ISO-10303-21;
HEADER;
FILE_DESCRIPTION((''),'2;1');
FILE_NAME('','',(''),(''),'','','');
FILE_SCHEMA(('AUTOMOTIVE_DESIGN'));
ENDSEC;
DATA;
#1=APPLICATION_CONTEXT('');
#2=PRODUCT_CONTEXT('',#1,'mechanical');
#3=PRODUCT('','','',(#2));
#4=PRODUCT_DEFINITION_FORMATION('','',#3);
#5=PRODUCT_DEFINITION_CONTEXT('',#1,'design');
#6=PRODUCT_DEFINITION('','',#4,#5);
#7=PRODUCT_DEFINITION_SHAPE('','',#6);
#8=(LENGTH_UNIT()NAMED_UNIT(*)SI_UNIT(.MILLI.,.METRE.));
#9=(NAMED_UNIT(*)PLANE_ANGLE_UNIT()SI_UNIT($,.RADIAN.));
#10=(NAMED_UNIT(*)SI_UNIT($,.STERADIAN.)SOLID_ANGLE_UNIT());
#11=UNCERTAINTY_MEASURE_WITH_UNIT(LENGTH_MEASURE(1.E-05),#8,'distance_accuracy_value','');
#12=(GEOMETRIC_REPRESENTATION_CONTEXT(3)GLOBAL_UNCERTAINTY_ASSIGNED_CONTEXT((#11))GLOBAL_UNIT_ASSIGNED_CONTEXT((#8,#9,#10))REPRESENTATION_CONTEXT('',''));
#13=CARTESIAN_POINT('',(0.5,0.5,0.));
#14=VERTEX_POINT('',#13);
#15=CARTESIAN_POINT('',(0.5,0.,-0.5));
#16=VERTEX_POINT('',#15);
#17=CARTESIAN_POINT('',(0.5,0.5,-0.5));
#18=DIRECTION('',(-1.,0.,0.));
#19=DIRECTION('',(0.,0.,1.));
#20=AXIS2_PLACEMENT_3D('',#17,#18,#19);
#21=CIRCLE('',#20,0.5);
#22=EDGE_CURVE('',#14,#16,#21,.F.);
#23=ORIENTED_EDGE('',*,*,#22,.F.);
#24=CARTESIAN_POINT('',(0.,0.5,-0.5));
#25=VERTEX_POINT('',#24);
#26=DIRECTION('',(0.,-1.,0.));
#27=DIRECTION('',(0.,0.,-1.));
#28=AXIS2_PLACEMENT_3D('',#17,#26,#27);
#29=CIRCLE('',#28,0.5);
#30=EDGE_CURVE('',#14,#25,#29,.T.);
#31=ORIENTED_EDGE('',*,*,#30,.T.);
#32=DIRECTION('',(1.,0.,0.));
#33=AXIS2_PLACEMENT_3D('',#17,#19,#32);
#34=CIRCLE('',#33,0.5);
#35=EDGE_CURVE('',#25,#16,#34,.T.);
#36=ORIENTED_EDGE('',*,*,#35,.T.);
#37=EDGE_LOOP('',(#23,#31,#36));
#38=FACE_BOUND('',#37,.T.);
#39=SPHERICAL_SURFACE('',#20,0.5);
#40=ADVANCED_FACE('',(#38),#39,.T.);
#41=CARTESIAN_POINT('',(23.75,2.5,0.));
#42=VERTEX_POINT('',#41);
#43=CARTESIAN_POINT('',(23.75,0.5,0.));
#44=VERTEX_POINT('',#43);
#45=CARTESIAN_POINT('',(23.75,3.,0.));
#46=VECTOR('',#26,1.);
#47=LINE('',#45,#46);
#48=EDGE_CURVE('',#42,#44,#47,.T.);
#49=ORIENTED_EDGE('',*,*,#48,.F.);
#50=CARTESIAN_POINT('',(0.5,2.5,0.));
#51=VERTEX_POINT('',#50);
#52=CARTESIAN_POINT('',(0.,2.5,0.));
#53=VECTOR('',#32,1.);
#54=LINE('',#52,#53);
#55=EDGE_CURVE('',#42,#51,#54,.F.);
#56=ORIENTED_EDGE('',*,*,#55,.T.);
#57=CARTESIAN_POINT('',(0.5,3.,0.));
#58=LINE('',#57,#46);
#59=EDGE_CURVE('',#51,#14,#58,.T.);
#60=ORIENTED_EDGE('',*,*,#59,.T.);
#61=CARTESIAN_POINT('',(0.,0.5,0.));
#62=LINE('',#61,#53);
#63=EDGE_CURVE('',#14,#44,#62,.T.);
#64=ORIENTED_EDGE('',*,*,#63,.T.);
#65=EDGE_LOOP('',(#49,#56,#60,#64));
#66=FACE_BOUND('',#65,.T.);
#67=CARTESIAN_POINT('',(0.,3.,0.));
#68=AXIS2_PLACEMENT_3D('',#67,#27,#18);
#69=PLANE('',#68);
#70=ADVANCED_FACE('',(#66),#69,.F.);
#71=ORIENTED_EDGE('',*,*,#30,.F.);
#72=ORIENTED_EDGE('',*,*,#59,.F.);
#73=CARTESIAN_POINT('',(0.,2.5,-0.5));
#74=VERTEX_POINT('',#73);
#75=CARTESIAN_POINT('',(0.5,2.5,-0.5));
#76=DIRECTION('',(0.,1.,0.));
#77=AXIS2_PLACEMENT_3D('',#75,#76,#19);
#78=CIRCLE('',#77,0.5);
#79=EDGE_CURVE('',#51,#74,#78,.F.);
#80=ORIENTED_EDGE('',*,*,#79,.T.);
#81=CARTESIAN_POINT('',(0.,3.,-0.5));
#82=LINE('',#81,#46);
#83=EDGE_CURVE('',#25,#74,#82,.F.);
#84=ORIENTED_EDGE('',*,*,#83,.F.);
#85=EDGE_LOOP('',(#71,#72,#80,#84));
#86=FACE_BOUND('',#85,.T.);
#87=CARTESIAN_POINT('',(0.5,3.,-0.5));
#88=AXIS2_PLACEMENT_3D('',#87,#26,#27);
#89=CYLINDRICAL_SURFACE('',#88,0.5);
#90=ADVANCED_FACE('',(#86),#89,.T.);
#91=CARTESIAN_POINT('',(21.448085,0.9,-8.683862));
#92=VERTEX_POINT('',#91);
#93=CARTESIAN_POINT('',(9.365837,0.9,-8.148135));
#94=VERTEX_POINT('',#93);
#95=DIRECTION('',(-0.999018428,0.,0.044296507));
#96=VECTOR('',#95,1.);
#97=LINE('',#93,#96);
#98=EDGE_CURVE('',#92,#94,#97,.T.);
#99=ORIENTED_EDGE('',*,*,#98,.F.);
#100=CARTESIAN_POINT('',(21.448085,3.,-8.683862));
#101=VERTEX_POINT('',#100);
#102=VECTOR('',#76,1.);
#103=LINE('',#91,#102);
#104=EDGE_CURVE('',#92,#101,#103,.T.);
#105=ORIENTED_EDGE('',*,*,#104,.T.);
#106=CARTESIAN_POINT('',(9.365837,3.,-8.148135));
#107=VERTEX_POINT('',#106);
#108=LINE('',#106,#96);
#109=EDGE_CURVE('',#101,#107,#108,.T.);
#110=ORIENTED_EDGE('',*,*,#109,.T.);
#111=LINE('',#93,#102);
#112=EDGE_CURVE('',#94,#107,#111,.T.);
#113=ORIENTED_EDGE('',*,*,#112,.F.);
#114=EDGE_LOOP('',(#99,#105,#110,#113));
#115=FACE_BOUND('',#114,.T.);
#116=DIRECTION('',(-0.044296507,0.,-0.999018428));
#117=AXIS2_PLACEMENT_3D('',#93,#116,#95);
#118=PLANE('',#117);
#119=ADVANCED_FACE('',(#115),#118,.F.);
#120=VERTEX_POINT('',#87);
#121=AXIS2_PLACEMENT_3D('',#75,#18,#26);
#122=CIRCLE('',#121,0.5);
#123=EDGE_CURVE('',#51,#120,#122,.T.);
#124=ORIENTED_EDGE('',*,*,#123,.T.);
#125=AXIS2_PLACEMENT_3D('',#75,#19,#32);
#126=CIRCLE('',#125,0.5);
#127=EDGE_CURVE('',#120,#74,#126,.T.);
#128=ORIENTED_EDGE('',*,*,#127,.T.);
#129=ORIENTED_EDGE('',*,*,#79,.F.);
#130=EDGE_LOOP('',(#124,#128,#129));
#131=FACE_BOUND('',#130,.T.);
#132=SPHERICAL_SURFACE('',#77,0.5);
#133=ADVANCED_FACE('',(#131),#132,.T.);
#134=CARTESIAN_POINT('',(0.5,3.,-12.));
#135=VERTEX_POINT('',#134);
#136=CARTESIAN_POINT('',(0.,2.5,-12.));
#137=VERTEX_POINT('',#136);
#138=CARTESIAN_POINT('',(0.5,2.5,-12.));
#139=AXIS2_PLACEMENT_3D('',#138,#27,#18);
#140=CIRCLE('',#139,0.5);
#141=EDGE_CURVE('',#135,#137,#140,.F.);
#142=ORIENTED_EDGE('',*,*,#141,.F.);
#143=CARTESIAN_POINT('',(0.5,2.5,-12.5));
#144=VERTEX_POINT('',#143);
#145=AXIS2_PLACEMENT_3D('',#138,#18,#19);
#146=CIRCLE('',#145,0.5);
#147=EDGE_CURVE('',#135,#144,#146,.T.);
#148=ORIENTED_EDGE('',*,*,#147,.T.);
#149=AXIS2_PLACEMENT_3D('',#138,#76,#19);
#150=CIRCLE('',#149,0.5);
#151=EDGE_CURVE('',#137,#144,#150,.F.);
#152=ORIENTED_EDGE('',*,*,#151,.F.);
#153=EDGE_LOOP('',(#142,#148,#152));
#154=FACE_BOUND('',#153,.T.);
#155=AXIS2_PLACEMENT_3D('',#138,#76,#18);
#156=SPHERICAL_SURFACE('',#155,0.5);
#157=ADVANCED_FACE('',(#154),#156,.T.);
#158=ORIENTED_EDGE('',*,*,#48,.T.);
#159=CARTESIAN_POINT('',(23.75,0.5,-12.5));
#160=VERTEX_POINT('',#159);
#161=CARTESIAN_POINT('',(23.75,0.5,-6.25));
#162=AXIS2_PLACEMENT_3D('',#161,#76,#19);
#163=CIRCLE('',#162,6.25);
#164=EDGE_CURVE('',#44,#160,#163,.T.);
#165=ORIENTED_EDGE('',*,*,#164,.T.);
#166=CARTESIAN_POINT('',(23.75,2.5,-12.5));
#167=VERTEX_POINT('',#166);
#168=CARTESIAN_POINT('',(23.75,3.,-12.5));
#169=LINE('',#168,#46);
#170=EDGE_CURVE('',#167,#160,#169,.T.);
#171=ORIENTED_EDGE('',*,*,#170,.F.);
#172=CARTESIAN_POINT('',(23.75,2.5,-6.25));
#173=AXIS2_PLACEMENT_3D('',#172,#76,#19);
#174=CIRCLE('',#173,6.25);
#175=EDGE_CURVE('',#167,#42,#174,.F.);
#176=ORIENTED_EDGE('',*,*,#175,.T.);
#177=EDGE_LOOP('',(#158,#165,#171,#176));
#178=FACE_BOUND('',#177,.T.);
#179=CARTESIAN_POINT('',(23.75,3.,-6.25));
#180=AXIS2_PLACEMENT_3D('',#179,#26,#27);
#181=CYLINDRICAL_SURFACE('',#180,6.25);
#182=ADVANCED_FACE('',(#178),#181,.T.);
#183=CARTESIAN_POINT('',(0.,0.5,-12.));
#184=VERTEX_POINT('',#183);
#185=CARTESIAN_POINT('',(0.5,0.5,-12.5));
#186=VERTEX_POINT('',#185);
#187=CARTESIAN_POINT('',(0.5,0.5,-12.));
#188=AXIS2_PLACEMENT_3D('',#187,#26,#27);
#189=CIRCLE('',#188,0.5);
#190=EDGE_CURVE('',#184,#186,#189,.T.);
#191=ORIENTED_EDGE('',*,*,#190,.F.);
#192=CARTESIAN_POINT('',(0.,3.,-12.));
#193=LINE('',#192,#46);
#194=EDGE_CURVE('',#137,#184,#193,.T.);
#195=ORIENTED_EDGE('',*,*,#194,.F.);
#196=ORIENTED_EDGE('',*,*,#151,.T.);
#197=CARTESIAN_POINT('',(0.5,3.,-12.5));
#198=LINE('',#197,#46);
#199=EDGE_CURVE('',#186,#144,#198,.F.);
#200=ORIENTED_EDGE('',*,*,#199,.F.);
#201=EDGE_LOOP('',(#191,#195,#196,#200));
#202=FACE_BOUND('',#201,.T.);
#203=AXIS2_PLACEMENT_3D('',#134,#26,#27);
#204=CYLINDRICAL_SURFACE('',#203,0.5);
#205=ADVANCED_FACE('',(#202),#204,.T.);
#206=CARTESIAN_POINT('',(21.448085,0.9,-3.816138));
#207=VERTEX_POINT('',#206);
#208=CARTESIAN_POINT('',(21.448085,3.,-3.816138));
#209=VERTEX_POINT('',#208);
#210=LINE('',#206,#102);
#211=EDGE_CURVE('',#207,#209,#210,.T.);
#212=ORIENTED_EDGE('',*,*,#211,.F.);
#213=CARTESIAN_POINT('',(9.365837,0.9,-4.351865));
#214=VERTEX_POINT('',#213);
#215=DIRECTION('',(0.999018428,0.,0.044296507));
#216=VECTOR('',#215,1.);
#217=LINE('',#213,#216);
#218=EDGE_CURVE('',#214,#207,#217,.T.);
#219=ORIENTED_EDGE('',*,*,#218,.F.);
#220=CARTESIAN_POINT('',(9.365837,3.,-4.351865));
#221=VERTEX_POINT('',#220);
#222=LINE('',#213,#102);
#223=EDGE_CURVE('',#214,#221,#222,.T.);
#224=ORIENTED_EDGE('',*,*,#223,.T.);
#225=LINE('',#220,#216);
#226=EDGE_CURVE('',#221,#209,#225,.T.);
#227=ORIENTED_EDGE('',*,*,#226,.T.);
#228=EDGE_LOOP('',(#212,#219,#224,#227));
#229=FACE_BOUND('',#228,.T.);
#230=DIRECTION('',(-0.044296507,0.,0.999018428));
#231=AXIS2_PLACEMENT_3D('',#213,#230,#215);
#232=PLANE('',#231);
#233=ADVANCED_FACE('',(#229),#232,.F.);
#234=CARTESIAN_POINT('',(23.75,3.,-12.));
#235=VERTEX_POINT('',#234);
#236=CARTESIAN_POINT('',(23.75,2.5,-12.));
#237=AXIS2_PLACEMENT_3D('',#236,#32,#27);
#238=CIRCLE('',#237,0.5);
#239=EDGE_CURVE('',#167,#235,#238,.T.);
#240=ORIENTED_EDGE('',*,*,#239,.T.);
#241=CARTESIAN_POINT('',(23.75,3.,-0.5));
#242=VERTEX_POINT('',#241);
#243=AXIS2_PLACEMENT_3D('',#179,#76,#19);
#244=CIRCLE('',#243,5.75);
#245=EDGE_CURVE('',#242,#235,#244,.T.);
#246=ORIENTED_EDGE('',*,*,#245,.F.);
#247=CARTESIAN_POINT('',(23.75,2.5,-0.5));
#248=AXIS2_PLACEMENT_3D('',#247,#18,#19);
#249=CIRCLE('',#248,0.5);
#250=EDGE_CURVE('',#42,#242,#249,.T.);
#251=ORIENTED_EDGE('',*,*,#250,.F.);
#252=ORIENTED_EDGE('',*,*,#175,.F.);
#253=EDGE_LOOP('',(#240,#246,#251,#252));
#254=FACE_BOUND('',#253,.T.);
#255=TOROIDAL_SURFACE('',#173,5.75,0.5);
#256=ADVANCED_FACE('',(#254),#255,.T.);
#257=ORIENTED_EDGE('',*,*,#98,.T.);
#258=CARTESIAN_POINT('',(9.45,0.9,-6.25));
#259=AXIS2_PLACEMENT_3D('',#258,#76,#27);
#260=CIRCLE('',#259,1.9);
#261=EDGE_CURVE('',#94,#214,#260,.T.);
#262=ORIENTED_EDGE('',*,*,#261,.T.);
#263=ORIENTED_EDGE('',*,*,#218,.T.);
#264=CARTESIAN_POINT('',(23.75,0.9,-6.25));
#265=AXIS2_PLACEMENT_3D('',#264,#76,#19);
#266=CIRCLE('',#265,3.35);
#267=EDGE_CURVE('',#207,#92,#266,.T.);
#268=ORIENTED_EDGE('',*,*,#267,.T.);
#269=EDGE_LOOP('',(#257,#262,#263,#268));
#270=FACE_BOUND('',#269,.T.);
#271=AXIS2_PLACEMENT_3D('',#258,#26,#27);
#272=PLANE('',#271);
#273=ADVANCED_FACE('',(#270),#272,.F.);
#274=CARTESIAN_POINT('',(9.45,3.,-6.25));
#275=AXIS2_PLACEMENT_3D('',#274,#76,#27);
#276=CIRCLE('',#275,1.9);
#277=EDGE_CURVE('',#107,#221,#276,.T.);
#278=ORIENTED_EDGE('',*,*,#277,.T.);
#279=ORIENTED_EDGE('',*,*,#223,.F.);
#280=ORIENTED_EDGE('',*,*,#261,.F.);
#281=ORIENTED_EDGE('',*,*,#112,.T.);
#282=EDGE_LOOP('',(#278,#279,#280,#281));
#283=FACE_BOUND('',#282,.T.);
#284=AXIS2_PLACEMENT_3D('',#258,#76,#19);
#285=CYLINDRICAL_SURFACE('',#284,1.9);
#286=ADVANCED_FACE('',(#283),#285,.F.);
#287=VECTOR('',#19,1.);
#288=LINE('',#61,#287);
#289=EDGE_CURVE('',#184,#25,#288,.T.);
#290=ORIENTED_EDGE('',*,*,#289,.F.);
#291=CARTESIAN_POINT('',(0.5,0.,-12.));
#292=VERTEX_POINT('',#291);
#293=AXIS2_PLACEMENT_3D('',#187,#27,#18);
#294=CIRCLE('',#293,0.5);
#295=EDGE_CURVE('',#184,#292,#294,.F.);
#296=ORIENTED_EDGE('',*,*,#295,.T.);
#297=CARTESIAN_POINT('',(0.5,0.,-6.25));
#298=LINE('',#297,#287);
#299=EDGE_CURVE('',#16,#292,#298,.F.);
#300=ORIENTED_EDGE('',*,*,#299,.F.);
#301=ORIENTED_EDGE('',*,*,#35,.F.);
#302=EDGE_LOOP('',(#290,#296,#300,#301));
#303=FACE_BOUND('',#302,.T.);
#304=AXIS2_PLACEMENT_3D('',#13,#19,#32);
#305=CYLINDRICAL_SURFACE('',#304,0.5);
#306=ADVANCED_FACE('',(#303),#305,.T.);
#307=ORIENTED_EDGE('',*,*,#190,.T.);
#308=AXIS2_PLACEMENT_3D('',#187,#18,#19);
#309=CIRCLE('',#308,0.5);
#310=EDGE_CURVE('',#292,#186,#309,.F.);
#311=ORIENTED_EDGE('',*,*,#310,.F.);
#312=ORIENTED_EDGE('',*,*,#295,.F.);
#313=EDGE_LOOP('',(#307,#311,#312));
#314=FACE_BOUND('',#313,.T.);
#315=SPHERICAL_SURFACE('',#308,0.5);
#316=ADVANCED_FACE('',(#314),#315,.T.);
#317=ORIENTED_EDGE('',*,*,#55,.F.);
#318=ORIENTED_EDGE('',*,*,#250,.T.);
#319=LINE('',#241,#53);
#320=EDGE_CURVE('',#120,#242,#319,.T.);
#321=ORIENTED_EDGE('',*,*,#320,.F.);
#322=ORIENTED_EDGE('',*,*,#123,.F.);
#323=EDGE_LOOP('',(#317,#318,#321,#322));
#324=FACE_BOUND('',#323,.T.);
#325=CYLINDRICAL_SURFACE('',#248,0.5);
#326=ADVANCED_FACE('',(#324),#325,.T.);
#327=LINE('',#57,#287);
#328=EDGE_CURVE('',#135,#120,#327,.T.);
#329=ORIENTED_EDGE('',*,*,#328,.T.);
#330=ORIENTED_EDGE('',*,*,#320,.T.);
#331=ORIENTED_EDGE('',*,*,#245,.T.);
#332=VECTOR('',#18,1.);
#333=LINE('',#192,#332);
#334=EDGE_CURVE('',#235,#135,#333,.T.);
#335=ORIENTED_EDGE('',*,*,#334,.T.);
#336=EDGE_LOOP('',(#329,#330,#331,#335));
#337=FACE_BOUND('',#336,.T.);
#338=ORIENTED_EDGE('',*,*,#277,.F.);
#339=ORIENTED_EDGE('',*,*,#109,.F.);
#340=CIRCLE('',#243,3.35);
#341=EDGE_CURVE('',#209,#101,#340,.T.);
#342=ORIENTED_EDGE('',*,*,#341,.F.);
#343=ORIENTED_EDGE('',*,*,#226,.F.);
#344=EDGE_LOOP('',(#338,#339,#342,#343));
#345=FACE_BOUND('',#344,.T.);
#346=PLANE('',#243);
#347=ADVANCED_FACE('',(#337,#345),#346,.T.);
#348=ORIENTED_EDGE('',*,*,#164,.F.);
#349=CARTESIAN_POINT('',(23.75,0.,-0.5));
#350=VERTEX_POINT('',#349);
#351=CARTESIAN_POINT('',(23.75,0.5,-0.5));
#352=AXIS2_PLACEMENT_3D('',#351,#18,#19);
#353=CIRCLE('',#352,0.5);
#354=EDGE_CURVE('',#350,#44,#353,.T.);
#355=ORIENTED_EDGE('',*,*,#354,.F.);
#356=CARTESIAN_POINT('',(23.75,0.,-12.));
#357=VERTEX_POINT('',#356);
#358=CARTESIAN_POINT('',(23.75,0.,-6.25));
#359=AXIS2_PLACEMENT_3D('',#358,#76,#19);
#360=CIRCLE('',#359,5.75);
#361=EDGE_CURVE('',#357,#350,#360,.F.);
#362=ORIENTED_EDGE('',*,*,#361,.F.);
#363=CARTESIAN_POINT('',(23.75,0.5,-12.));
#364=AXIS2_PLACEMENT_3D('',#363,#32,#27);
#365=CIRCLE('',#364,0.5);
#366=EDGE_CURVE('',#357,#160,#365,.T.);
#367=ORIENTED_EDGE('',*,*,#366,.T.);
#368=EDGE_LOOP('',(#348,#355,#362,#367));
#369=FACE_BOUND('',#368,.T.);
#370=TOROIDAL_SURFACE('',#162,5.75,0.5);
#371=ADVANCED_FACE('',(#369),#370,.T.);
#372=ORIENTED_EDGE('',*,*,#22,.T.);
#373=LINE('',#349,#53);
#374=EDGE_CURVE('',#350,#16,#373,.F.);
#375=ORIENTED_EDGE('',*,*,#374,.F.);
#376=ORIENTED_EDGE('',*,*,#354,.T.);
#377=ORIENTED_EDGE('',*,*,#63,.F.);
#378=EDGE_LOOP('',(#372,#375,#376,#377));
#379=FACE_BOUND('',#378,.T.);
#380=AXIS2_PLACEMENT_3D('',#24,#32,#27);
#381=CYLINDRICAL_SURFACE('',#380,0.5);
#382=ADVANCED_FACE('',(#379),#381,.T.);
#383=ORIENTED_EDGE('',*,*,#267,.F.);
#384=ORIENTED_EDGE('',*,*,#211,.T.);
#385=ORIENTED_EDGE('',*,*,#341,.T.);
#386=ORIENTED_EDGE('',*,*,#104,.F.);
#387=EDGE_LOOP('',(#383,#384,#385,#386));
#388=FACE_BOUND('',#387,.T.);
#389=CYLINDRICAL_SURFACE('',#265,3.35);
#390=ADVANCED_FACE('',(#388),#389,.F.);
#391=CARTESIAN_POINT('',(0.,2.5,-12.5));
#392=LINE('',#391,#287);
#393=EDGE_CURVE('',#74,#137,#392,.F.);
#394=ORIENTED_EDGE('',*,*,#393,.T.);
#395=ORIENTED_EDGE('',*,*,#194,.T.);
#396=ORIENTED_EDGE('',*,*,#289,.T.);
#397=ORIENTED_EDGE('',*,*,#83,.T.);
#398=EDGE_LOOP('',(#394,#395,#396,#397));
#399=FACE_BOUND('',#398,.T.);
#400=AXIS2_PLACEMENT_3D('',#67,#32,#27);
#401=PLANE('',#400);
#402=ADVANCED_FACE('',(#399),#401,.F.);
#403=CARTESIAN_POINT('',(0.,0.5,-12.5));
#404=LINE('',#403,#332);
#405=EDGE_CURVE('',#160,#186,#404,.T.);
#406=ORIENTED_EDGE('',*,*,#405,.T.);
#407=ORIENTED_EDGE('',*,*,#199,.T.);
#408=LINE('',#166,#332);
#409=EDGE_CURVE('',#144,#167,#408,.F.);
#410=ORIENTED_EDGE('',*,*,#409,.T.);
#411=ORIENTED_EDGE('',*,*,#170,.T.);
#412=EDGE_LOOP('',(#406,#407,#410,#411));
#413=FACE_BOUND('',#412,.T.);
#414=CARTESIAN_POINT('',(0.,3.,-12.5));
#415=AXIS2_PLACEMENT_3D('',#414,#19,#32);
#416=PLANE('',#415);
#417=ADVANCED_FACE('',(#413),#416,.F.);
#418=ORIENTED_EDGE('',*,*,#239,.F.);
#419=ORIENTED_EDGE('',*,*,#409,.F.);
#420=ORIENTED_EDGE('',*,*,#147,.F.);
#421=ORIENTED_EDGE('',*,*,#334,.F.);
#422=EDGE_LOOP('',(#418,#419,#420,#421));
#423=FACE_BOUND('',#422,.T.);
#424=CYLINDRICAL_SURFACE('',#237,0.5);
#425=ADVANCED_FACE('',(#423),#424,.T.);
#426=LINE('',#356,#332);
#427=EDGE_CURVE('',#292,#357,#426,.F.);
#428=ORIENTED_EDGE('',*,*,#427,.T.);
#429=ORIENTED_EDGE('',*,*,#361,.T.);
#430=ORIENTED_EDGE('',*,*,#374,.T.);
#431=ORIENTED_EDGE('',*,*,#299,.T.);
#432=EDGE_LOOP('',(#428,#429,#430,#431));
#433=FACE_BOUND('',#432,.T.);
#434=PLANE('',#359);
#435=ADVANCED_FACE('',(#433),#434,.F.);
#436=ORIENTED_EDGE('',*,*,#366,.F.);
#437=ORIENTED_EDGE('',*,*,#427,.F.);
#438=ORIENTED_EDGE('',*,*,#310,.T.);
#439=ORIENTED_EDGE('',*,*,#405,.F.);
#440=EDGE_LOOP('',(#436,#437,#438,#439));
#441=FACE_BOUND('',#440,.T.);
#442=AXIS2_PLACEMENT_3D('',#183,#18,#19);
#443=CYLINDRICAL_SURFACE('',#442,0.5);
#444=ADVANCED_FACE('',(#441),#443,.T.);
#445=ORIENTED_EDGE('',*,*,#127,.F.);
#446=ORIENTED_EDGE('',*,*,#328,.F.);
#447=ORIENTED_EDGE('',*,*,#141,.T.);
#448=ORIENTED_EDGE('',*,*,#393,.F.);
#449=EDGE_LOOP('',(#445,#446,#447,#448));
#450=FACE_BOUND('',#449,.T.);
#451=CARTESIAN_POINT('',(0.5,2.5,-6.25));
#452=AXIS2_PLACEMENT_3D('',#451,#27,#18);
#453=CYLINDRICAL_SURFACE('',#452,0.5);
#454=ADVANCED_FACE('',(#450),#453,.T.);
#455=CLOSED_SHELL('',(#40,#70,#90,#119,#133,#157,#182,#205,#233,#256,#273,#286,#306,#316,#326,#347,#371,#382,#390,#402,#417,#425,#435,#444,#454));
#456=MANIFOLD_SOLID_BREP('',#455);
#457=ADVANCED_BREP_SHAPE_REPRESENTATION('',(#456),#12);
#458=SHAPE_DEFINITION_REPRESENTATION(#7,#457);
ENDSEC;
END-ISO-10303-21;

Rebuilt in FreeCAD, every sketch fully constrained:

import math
import FreeCAD as App
import Part
import Sketcher

doc = App.newDocument("Part")
params = doc.addObject("Spreadsheet::Sheet", "Params")
for row, (alias, value) in enumerate([
    ("sketch1_radius", "6.25 mm"),
    ("sketch1_width", "23.75 mm"),
    ("pad1_length", "3 mm"),
    ("fillet_radius", "0.5 mm"),
    ("sketch2_radius", "1.9 mm"),
    ("sketch2_radius2", "3.35 mm"),
    ("pocket1_length", "2.1 mm"),
], start=1):
    params.set(f"A{row}", alias)
    params.set(f"B{row}", "=" + value)
    params.setAlias(f"B{row}", alias)

body = doc.addObject("PartDesign::Body", "Body")

# Sketch on XZ plane
sketch1 = doc.addObject("Sketcher::SketchObject", "Sketch")
body.addObject(sketch1)
sketch1.AttachmentSupport = (doc.XZ_Plane, [""])
sketch1.MapMode = "FlatFace"
sketch1.addGeometry([
    Part.LineSegment(App.Vector(0, 0, 0), App.Vector(23.75, 0, 0)),
    Part.ArcOfCircle(Part.Circle(App.Vector(23.75, -6.25, 0), App.Vector(0, 0, 1), 6.25), math.radians(-90), math.radians(90)),
    Part.LineSegment(App.Vector(23.75, -12.5, 0), App.Vector(0, -12.5, 0)),
    Part.LineSegment(App.Vector(0, -12.5, 0), App.Vector(0, 0, 0)),
], False)
sketch1.addConstraint([
    Sketcher.Constraint("Tangent", 0, 2, 1, 2),
    Sketcher.Constraint("Tangent", 1, 1, 2, 1),
    Sketcher.Constraint("Coincident", 2, 2, 3, 1),
    Sketcher.Constraint("Coincident", 3, 2, 0, 1),
    Sketcher.Constraint("Horizontal", 0),
    Sketcher.Constraint("Horizontal", 2),
    Sketcher.Constraint("Vertical", 3),
    Sketcher.Constraint("Coincident", 3, 2, -1, 1),
    Sketcher.Constraint("Radius", 1, 6.25),
    Sketcher.Constraint("DistanceX", 0, 1, 0, 2, 23.75),
])
sketch1.setExpression("Constraints[8]", "Params.sketch1_radius")
sketch1.setExpression("Constraints[9]", "Params.sketch1_width")
pad1 = doc.addObject("PartDesign::Pad", "Pad")
body.addObject(pad1)
pad1.Profile = sketch1
pad1.setExpression("Length", "Params.pad1_length")
pad1.Reversed = True
doc.recompute()

fillet = doc.addObject("PartDesign::Fillet", "Fillet")
body.addObject(fillet)
fillet.Base = (pad1, ["Edge1"])
fillet.UseAllEdges = True
fillet.setExpression("Radius", "Params.fillet_radius")

# Sketch on XZ plane
sketch2 = doc.addObject("Sketcher::SketchObject", "Sketch001")
body.addObject(sketch2)
sketch2.AttachmentSupport = (doc.XZ_Plane, [""])
sketch2.MapMode = "FlatFace"
sketch2.AttachmentOffset = App.Placement(App.Vector(0, 0, -3), App.Rotation())
sketch2.addGeometry([
    Part.LineSegment(App.Vector(21.448085, -8.683862, 0), App.Vector(9.365837, -8.148135, 0)),
    Part.ArcOfCircle(Part.Circle(App.Vector(9.45, -6.25, 0), App.Vector(0, 0, 1), 1.9), math.radians(92.538834), math.radians(267.461166)),
    Part.LineSegment(App.Vector(9.365837, -4.351865, 0), App.Vector(21.448085, -3.816138, 0)),
    Part.ArcOfCircle(Part.Circle(App.Vector(23.75, -6.25, 0), App.Vector(0, 0, 1), 3.35), math.radians(-133.404055), math.radians(133.404055)),
], False)
sketch2.addConstraint([
    Sketcher.Constraint("Tangent", 0, 2, 1, 2),
    Sketcher.Constraint("Tangent", 1, 1, 2, 1),
    Sketcher.Constraint("Coincident", 2, 2, 3, 2),
    Sketcher.Constraint("Coincident", 3, 1, 0, 1),
    Sketcher.Constraint("Horizontal", 1, 3, 3, 3),
    Sketcher.Constraint("Vertical", 0, 2, 1, 1),
    Sketcher.Constraint("Radius", 1, 1.9),
    Sketcher.Constraint("Radius", 3, 3.35),
    Sketcher.Constraint("DistanceX", 1, 3, 3, 3, 14.3),
    Sketcher.Constraint("DistanceX", -1, 1, 1, 3, 9.45),
    Sketcher.Constraint("DistanceY", 1, 3, -1, 1, 6.25),
    Sketcher.Constraint("Distance", 0, 12.094119),
])
sketch2.setExpression("Constraints[6]", "Params.sketch2_radius")
sketch2.setExpression("Constraints[7]", "Params.sketch2_radius2")
pocket1 = doc.addObject("PartDesign::Pocket", "Pocket")
body.addObject(pocket1)
pocket1.Profile = sketch2
pocket1.setExpression("Length", "Params.pocket1_length")
pocket1.Reversed = True

doc.recompute()
